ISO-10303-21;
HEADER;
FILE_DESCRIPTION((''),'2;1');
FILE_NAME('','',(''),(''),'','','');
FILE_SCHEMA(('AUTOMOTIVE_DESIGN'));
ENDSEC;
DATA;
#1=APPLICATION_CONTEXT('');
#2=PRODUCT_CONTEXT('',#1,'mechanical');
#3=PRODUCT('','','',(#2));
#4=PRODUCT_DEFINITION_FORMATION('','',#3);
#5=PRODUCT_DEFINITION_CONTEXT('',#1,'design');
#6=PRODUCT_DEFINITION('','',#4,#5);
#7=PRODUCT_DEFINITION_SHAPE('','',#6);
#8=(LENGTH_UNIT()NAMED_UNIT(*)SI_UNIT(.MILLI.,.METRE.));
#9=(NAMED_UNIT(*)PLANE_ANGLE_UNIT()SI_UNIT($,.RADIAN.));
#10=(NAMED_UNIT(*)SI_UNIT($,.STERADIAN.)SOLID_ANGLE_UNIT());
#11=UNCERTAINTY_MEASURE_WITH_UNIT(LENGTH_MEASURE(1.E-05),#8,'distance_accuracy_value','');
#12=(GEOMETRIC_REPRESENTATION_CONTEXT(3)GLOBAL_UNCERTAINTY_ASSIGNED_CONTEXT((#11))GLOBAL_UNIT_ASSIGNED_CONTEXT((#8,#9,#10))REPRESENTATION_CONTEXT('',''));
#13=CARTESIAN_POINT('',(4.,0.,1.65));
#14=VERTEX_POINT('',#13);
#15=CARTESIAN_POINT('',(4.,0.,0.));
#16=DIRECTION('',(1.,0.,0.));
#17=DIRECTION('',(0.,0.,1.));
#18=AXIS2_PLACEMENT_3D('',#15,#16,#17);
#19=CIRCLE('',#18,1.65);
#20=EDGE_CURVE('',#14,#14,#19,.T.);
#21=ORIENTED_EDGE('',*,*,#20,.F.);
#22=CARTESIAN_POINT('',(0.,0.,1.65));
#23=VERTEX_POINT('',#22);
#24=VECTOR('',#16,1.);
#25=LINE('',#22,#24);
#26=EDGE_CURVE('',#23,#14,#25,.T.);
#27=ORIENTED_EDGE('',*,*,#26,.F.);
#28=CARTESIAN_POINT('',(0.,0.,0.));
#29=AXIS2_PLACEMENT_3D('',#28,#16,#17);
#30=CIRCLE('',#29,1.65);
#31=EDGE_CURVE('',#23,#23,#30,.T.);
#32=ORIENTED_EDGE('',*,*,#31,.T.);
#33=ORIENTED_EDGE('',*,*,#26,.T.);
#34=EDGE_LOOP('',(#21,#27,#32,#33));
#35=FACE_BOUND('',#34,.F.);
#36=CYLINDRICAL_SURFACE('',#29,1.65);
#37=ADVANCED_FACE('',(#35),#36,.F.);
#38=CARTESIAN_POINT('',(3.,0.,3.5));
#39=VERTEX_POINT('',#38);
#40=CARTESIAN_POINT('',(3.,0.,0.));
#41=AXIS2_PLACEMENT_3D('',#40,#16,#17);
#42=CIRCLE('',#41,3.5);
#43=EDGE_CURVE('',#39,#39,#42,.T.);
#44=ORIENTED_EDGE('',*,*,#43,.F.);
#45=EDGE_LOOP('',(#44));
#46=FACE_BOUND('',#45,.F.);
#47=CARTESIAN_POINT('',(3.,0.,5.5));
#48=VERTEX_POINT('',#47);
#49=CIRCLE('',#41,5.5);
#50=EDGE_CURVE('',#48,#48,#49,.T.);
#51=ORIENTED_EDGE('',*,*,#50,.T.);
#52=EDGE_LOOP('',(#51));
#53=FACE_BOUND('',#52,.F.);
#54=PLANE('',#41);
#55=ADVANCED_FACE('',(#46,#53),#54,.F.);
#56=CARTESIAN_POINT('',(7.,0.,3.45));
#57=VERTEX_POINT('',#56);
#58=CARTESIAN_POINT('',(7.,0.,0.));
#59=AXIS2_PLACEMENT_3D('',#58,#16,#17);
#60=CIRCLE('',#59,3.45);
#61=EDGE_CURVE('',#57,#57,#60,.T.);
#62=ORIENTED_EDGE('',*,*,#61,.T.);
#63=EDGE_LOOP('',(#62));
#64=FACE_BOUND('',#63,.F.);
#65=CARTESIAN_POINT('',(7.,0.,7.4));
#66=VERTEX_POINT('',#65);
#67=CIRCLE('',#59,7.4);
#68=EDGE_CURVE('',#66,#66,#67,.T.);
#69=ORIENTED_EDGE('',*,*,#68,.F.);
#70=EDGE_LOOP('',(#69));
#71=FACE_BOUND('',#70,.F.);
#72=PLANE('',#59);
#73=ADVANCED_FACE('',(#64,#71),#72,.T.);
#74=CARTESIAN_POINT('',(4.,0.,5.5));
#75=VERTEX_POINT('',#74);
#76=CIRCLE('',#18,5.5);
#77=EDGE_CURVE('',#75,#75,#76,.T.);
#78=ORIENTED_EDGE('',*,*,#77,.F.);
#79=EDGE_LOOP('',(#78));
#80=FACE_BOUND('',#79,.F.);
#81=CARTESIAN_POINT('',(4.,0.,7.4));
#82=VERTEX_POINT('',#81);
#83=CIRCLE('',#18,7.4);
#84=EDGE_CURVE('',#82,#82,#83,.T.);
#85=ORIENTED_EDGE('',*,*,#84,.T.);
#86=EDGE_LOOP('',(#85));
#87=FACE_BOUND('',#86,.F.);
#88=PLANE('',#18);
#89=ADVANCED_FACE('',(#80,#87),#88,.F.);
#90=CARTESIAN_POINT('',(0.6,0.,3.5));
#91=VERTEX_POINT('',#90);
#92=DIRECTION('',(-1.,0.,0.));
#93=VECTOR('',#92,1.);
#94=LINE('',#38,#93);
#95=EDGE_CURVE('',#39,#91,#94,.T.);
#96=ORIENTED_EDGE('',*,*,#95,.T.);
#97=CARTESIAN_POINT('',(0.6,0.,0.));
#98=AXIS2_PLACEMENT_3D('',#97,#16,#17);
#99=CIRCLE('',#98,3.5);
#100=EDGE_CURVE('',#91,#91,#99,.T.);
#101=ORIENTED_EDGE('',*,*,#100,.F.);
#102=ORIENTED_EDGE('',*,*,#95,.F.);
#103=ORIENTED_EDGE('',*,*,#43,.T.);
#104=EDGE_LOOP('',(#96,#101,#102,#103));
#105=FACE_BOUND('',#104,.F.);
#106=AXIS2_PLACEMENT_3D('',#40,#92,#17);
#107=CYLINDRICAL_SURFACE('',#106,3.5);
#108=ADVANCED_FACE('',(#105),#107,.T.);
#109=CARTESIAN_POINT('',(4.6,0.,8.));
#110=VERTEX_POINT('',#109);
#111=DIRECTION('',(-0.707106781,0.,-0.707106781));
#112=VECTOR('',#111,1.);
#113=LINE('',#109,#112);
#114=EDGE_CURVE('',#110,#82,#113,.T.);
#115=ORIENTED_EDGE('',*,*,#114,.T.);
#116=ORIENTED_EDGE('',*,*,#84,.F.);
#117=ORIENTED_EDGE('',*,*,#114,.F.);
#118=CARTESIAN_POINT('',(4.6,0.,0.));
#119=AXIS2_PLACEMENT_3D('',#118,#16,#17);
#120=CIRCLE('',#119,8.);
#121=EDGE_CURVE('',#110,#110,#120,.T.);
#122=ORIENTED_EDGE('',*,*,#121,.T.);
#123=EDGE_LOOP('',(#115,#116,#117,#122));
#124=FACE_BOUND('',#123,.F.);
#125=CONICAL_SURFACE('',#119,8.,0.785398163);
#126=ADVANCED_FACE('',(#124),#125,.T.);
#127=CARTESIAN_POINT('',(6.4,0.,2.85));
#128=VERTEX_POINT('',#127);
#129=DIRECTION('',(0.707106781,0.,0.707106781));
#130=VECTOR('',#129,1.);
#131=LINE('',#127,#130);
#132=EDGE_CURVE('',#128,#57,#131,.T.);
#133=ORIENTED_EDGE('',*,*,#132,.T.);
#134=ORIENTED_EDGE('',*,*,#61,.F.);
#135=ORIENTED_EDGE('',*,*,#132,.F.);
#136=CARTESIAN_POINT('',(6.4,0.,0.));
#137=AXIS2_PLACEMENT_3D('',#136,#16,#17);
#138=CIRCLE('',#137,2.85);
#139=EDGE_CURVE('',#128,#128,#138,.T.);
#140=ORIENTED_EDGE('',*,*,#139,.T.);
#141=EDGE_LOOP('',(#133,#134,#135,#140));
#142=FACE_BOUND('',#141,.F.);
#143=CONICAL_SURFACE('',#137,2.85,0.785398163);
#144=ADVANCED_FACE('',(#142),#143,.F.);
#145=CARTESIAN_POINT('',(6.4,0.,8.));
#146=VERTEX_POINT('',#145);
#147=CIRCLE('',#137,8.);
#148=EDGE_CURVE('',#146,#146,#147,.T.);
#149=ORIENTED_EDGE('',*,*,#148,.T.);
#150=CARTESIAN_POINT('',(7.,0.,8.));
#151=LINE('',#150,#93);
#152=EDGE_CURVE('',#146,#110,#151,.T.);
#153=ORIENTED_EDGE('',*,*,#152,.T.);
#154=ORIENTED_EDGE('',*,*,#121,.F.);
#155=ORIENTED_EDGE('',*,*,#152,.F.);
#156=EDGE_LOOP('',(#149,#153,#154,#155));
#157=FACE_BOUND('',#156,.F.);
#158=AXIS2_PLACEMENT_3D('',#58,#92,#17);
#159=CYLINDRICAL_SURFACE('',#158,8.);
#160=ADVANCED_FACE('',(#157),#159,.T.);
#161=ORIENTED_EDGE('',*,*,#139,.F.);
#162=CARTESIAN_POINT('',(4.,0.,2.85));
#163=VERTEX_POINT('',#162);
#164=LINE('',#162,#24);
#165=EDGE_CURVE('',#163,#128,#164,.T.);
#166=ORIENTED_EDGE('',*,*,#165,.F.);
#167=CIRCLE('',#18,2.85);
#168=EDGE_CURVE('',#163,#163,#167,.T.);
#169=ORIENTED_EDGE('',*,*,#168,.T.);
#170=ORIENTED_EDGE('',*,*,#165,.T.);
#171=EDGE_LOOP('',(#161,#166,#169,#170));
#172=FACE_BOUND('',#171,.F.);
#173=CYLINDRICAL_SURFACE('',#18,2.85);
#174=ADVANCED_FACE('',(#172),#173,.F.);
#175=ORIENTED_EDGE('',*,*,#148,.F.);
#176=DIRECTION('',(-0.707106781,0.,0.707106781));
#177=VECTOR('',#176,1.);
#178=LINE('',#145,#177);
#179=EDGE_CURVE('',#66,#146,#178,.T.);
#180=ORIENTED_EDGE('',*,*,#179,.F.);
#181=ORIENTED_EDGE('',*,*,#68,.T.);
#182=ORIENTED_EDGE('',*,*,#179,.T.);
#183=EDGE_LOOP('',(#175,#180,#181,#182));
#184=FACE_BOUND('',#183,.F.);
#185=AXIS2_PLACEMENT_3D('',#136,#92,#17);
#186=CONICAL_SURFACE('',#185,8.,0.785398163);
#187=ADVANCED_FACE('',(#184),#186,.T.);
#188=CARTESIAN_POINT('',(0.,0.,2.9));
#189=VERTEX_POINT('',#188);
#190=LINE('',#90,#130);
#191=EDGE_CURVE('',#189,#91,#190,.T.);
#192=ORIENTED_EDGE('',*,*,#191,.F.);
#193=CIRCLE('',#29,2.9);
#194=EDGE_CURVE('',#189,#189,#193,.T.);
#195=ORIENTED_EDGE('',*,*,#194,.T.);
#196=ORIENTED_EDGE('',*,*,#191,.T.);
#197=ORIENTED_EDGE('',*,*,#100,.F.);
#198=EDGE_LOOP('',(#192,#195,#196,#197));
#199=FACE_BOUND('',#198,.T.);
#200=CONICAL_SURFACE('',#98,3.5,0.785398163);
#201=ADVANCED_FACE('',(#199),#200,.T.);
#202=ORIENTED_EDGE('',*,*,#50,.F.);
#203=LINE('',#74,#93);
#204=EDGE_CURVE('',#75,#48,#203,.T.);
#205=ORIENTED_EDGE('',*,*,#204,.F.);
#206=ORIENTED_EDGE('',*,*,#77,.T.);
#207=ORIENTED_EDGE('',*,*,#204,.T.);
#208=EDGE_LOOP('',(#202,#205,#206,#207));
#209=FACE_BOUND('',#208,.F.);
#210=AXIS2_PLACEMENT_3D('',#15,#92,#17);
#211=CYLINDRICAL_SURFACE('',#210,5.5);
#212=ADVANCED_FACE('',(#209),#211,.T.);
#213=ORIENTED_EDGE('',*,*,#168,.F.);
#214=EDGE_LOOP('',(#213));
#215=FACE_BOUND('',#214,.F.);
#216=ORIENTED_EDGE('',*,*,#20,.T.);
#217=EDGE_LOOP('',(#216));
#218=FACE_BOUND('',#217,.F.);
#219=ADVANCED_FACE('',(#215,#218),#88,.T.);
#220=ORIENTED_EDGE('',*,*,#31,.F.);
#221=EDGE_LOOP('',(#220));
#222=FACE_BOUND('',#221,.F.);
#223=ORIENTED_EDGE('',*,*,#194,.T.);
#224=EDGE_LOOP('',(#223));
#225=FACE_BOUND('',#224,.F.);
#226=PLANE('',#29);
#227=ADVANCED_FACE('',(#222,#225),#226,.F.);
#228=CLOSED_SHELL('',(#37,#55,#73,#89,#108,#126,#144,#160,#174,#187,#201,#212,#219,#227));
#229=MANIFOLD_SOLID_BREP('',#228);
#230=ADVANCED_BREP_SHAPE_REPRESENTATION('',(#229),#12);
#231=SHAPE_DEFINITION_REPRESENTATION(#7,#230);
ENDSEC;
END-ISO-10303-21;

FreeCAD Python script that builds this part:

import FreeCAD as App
import Part
import Sketcher


def edges_at(feature, points):
    """Names of the edges that pass closest to the given points."""
    edges = feature.Shape.Edges
    near = lambda p: min(range(len(edges)), key=lambda i: edges[i].distToShape(Part.Vertex(*p))[0])
    return sorted({f"Edge{near(p) + 1}" for p in points})

doc = App.newDocument("Part")
body = doc.addObject("PartDesign::Body", "Body")

sketch1 = doc.addObject("Sketcher::SketchObject", "Sketch")
body.addObject(sketch1)
sketch1.AttachmentSupport = (doc.XZ_Plane, [""])
sketch1.MapMode = "FlatFace"
sketch1.addGeometry([
    Part.LineSegment(App.Vector(0, 3.5, 0), App.Vector(0, 1.6, 0)),
    Part.LineSegment(App.Vector(0, 1.6, 0), App.Vector(4, 1.6, 0)),
    Part.LineSegment(App.Vector(4, 1.6, 0), App.Vector(4, 2.9, 0)),
    Part.LineSegment(App.Vector(4, 2.9, 0), App.Vector(7, 2.9, 0)),
    Part.LineSegment(App.Vector(7, 2.9, 0), App.Vector(7, 8, 0)),
    Part.LineSegment(App.Vector(7, 8, 0), App.Vector(4, 8, 0)),
    Part.LineSegment(App.Vector(4, 8, 0), App.Vector(4, 5.5, 0)),
    Part.LineSegment(App.Vector(4, 5.5, 0), App.Vector(3, 5.5, 0)),
    Part.LineSegment(App.Vector(3, 5.5, 0), App.Vector(3, 3.5, 0)),
    Part.LineSegment(App.Vector(3, 3.5, 0), App.Vector(0, 3.5, 0)),
], False)
sketch1.addConstraint([
    Sketcher.Constraint("Coincident", 0, 2, 1, 1),
    Sketcher.Constraint("Coincident", 1, 2, 2, 1),
    Sketcher.Constraint("Coincident", 2, 2, 3, 1),
    Sketcher.Constraint("Coincident", 3, 2, 4, 1),
    Sketcher.Constraint("Coincident", 4, 2, 5, 1),
    Sketcher.Constraint("Coincident", 5, 2, 6, 1),
    Sketcher.Constraint("Coincident", 6, 2, 7, 1),
    Sketcher.Constraint("Coincident", 7, 2, 8, 1),
    Sketcher.Constraint("Coincident", 8, 2, 9, 1),
    Sketcher.Constraint("Coincident", 9, 2, 0, 1),
    Sketcher.Constraint("Vertical", 0),
    Sketcher.Constraint("Horizontal", 1),
    Sketcher.Constraint("Vertical", 2),
    Sketcher.Constraint("Horizontal", 3),
    Sketcher.Constraint("Vertical", 4),
    Sketcher.Constraint("Horizontal", 5),
    Sketcher.Constraint("Vertical", 6),
    Sketcher.Constraint("Horizontal", 7),
    Sketcher.Constraint("Vertical", 8),
    Sketcher.Constraint("Horizontal", 9),
    Sketcher.Constraint("PointOnObject", 0, 2, -2),
    Sketcher.Constraint("Vertical", 2, 2, 5, 2),
    Sketcher.Constraint("Equal", 5, 9),
    Sketcher.Constraint("DistanceX", 1, 1, 1, 2, 4.0),
    Sketcher.Constraint("DistanceX", 3, 1, 3, 2, 3.0),
    Sketcher.Constraint("DistanceY", 8, 2, 8, 1, 2.0),
    Sketcher.Constraint("DistanceY", 2, 1, 2, 2, 1.2),
    Sketcher.Constraint("DistanceY", 6, 2, 6, 1, 2.5),
    Sketcher.Constraint("DistanceY", -1, 1, 4, 2, 8.0),
    Sketcher.Constraint("DistanceY", 0, 2, 0, 1, 1.85),
])
revolution = doc.addObject("PartDesign::Revolution", "Revolution")
body.addObject(revolution)
revolution.Profile = sketch1
revolution.ReferenceAxis = (sketch1, ["H_Axis"])
revolution.Angle = 360
doc.recompute()

chamfer = doc.addObject("PartDesign::Chamfer", "Chamfer")
body.addObject(chamfer)
chamfer.Base = (revolution, edges_at(revolution, [
    (7, 0, -8),
    (4, 0, -8),
    (7, 0, -2.85),
    (0, 0, -3.5),
]))
chamfer.Size = 0.6

doc.recompute()
